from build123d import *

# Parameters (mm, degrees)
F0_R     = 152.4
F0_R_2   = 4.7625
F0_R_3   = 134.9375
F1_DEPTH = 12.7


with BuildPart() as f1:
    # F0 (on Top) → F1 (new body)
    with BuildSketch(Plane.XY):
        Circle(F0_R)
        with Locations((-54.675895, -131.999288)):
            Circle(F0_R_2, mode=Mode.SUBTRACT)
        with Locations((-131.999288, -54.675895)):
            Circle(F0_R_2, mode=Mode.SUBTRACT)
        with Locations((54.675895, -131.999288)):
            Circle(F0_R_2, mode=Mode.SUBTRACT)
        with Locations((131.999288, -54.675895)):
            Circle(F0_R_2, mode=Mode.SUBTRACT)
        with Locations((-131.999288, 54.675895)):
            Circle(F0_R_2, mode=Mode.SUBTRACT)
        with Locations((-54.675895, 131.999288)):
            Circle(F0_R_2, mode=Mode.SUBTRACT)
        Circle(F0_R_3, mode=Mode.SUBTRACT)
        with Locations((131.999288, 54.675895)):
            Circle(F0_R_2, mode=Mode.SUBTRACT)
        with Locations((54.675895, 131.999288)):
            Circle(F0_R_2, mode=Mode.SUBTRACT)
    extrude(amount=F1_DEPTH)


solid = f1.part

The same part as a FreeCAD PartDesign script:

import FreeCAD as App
import Part
import Sketcher

V = App.Vector
Q = App.Units.Quantity

doc = App.newDocument("Part")
body = doc.addObject("PartDesign::Body", "Body")

sketch1 = body.newObject("Sketcher::SketchObject", "Sketch")
sketch1.AttachmentSupport = (doc.getObject("XY_Plane"), [""])
sketch1.MapMode = "FlatFace"
sketch1.addGeometry([
    Part.Circle(V(0, 0, 0), V(0, 0, 1), 152.4),
    Part.Circle(V(-54.7, -132, 0), V(0, 0, 1), 4.8),
    Part.Circle(V(-132, -54.7, 0), V(0, 0, 1), 4.8),
    Part.Circle(V(54.7, -132, 0), V(0, 0, 1), 4.8),
    Part.Circle(V(132, -54.7, 0), V(0, 0, 1), 4.8),
    Part.Circle(V(-132, 54.7, 0), V(0, 0, 1), 4.8),
    Part.Circle(V(-54.7, 132, 0), V(0, 0, 1), 4.8),
    Part.Circle(V(0, 0, 0), V(0, 0, 1), 134.9),
    Part.Circle(V(132, 54.7, 0), V(0, 0, 1), 4.8),
    Part.Circle(V(54.7, 132, 0), V(0, 0, 1), 4.8),
], False)
sketch1.addConstraint([
    Sketcher.Constraint("Coincident", 0, 3, -1, 1),
    Sketcher.Constraint("Coincident", 7, 3, -1, 1),
    Sketcher.Constraint("Equal", 1, 2),
    Sketcher.Constraint("Equal", 2, 3),
    Sketcher.Constraint("Equal", 3, 4),
    Sketcher.Constraint("Equal", 4, 5),
    Sketcher.Constraint("Equal", 5, 6),
    Sketcher.Constraint("Equal", 6, 8),
    Sketcher.Constraint("Equal", 8, 9),
    Sketcher.Constraint("Symmetric", 4, 3, 5, 3, -1, 1),
    Sketcher.Constraint("Symmetric", 3, 3, 6, 3, -1, 1),
    Sketcher.Constraint("Symmetric", 2, 3, 8, 3, -1, 1),
    Sketcher.Constraint("Symmetric", 1, 3, 9, 3, -1, 1),
    Sketcher.Constraint("Symmetric", 1, 3, 3, 3, -2),
    Sketcher.Constraint("Symmetric", 2, 3, 4, 3, -2),
    Sketcher.Constraint("Diameter", 0, Q("12 in")),
    Sketcher.Constraint("Diameter", 1, Q("0.375 in")),
    Sketcher.Constraint("Diameter", 7, Q("10.625 in")),
    Sketcher.Constraint("DistanceY", 1, 3, -1, 1, Q("131.999288 mm")),
    Sketcher.Constraint("DistanceX", 2, 3, -1, 1, Q("131.999288 mm")),
    Sketcher.Constraint("DistanceX", 1, 3, 3, 3, Q("109.35179 mm")),
    Sketcher.Constraint("DistanceY", 2, 3, 5, 3, Q("109.35179 mm")),
])
pad1 = body.newObject("PartDesign::Pad", "Pad")
pad1.Profile = sketch1
pad1.Length = Q("0.5 in")

doc.recompute()
